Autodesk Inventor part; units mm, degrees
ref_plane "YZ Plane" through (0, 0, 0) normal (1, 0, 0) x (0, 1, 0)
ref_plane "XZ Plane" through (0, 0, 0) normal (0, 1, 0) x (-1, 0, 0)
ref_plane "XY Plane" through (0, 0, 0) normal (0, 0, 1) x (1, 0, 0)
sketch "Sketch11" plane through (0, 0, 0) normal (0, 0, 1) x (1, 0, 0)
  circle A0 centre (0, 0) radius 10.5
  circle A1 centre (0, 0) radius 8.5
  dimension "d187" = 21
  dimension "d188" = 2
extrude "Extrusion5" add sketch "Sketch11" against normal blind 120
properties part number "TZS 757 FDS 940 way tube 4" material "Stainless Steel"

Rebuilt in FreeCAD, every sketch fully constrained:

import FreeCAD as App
import Part
import Sketcher

doc = App.newDocument("Part")
params = doc.addObject("Spreadsheet::Sheet", "Params")
for row, (alias, value) in enumerate([
    ("sketch1_diameter", "21 mm"),
    ("sketch1_diameter2", "17 mm"),
    ("pad1_length", "120 mm"),
], start=1):
    params.set(f"A{row}", alias)
    params.set(f"B{row}", "=" + value)
    params.setAlias(f"B{row}", alias)

body = doc.addObject("PartDesign::Body", "Body")

# Sketch on XY plane
sketch1 = body.newObject("Sketcher::SketchObject", "Sketch")
sketch1.AttachmentSupport = (doc.getObject("XY_Plane"), [""])
sketch1.MapMode = "FlatFace"
sketch1.addGeometry(Part.Circle(App.Vector(0, 0, 0), App.Vector(0, 0, 1), 10), False)
sketch1.addGeometry(Part.Circle(App.Vector(0, 0, 0), App.Vector(0, 0, 1), 8), False)
sketch1.addConstraint(Sketcher.Constraint("Coincident", 0, 3, -1, 1))
sketch1.addConstraint(Sketcher.Constraint("Coincident", 1, 3, -1, 1))
sketch1.addConstraint(Sketcher.Constraint("Diameter", 0, 21.0))
sketch1.addConstraint(Sketcher.Constraint("Diameter", 1, 17.0))
sketch1.setExpression("Constraints[2]", "Params.sketch1_diameter")
sketch1.setExpression("Constraints[3]", "Params.sketch1_diameter2")
pad1 = body.newObject("PartDesign::Pad", "Pad")
pad1.Profile = sketch1
pad1.setExpression("Length", "Params.pad1_length")
pad1.Reversed = True

doc.recompute()
